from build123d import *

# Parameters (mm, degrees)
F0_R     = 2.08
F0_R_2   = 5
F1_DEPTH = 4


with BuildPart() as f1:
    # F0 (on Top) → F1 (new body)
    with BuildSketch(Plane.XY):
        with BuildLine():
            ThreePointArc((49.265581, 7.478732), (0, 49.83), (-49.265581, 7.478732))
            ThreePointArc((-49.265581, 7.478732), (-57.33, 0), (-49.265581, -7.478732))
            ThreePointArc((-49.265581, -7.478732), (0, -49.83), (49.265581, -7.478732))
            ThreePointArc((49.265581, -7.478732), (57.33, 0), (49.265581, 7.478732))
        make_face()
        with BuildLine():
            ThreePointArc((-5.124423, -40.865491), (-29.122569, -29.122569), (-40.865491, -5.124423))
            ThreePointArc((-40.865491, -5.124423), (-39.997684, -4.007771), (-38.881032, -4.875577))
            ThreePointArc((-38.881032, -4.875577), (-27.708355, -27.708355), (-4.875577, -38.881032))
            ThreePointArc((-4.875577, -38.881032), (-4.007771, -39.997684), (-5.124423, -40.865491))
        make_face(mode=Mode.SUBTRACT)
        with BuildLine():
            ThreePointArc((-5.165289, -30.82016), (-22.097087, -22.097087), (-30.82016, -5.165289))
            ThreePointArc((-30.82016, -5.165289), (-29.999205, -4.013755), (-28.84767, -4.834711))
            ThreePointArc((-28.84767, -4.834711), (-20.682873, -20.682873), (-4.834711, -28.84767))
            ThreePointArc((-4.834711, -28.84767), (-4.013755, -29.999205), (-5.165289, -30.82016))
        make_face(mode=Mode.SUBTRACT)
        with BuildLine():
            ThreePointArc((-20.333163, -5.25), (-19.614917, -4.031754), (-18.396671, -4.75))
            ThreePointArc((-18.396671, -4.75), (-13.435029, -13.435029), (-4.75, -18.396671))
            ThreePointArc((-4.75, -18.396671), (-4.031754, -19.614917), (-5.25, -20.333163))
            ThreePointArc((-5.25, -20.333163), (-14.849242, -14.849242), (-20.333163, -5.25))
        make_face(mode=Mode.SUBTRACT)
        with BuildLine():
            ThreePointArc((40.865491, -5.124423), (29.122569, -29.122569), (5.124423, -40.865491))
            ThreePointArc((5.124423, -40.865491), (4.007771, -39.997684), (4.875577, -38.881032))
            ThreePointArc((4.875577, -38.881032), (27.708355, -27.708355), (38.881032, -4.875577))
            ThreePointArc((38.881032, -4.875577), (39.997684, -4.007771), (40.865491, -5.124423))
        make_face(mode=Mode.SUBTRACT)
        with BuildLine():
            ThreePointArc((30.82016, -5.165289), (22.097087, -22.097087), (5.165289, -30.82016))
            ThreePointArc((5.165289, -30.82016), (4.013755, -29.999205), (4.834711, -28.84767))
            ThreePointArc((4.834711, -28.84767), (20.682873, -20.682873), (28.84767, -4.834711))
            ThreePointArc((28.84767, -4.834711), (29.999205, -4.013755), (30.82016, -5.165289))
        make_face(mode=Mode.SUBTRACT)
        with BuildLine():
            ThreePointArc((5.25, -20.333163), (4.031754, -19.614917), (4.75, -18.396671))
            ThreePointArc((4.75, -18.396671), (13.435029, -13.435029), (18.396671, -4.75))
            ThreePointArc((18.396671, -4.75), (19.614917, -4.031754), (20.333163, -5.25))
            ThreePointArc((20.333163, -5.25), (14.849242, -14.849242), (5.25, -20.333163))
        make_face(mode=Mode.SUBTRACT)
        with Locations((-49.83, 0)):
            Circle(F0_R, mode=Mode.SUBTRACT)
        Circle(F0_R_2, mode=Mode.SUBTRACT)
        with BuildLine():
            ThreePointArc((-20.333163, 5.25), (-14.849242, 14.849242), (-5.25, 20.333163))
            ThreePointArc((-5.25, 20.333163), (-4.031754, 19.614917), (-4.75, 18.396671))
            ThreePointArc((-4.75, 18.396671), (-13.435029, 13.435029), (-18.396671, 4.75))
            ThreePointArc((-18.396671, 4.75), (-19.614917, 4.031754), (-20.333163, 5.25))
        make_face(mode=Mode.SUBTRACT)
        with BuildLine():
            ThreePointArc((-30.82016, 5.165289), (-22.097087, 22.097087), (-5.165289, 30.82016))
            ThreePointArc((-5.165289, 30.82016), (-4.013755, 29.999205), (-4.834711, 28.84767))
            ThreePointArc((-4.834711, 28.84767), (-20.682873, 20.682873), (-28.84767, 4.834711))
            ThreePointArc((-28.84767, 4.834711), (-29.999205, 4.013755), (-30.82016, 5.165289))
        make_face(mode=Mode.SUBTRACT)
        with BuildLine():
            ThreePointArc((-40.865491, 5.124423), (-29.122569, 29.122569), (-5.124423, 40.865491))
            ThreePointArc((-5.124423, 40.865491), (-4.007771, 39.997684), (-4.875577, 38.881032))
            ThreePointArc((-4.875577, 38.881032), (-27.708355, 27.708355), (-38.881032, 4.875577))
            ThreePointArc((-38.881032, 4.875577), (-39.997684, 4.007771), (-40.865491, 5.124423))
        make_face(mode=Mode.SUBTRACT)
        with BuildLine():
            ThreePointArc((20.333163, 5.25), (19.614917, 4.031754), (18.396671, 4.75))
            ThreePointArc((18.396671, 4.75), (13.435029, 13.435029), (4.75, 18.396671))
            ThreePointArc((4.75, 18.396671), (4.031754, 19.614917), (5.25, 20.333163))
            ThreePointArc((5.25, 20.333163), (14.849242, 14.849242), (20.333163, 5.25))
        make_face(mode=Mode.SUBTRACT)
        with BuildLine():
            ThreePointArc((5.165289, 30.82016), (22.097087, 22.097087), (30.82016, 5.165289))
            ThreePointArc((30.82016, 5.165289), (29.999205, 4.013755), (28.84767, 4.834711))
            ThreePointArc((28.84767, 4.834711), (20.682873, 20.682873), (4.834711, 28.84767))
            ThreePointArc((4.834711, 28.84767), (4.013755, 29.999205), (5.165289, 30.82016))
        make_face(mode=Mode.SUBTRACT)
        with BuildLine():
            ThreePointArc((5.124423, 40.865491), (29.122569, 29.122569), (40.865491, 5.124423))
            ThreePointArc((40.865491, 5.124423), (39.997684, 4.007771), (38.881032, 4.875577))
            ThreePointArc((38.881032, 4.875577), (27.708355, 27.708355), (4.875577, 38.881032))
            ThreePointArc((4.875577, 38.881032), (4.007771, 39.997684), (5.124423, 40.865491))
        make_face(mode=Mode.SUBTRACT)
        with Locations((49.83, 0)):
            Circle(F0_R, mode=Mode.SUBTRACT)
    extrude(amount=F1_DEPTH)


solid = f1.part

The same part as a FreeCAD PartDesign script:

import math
import FreeCAD as App
import Part
import Sketcher

V = App.Vector

doc = App.newDocument("Part")
body = doc.addObject("PartDesign::Body", "Body")

sketch1 = body.newObject("Sketcher::SketchObject", "Sketch")
sketch1.AttachmentSupport = (doc.getObject("XY_Plane"), [""])
sketch1.MapMode = "FlatFace"
sketch1.addGeometry(Part.ArcOfCircle(Part.Circle(V(0, 0, 0), V(0, 0, 1), 49.83), math.radians(8.631848), math.radians(171.368152)), False)
sketch1.addGeometry(Part.ArcOfCircle(Part.Circle(V(-49.83, 0, 0), V(0, 0, 1), 7.5), math.radians(85.684077), math.radians(274.315923)), False)
sketch1.addGeometry(Part.ArcOfCircle(Part.Circle(V(0, 0, 0), V(0, 0, 1), 49.83), math.radians(-171.368152), math.radians(-8.631848)), False)
sketch1.addGeometry(Part.ArcOfCircle(Part.Circle(V(49.83, 0, 0), V(0, 0, 1), 7.5), math.radians(-94.315923), math.radians(94.315923)), False)
sketch1.addGeometry(Part.ArcOfCircle(Part.Circle(V(-5.000001, -39.873261, 0), V(0, 0, 1), 1), math.radians(-97.147402), math.radians(82.852534)), False)
sketch1.addGeometry(Part.ArcOfCircle(Part.Circle(V(0.000001, 0.000001, 0), V(0, 0, 1), 41.185533), math.radians(-172.85257), math.radians(-97.14743)), False)
sketch1.addGeometry(Part.ArcOfCircle(Part.Circle(V(-39.873261, -5.000001, 0), V(0, 0, 1), 1), math.radians(7.147466), math.radians(187.147402)), False)
sketch1.addGeometry(Part.ArcOfCircle(Part.Circle(V(0.000001, 0.000001, 0), V(0, 0, 1), 39.185533), math.radians(-172.852569), math.radians(-97.147431)), False)
sketch1.addGeometry(Part.Circle(V(-49.83, 0, 0), V(0, 0, 1), 2.08), False)
sketch1.addGeometry(Part.ArcOfCircle(Part.Circle(V(-5, -29.833915, 0), V(0, 0, 1), 1), math.radians(-99.514035), math.radians(80.485984)), False)
sketch1.addGeometry(Part.ArcOfCircle(Part.Circle(V(-0.000002, -0.000002, 0), V(0, 0, 1), 31.249997), math.radians(-170.485965), math.radians(-99.514035)), False)
sketch1.addGeometry(Part.ArcOfCircle(Part.Circle(V(-29.833915, -5, 0), V(0, 0, 1), 1), math.radians(9.514016), math.radians(189.514035)), False)
sketch1.addGeometry(Part.ArcOfCircle(Part.Circle(V(0.000002, 0.000002, 0), V(0, 0, 1), 29.250002), math.radians(-170.485959), math.radians(-99.514041)), False)
sketch1.addGeometry(Part.ArcOfCircle(Part.Circle(V(0.000005, 0.000005, 0), V(0, 0, 1), 21.000007), math.radians(-165.522478), math.radians(-104.477522)), False)
sketch1.addGeometry(Part.ArcOfCircle(Part.Circle(V(-19.364917, -5, 0), V(0, 0, 1), 1), math.radians(14.47751), math.radians(194.47751)), False)
sketch1.addGeometry(Part.ArcOfCircle(Part.Circle(V(-0.000001, -0.000001, 0), V(0, 0, 1), 18.999999), math.radians(-165.522489), math.radians(-104.477511)), False)
sketch1.addGeometry(Part.ArcOfCircle(Part.Circle(V(-5, -19.364917, 0), V(0, 0, 1), 1), math.radians(-104.47751), math.radians(75.52249)), False)
sketch1.addGeometry(Part.Circle(V(0, 0, 0), V(0, 0, 1), 5), False)
sketch1.addGeometry(Part.ArcOfCircle(Part.Circle(V(39.873261, -5.000001, 0), V(0, 0, 1), 1), math.radians(-7.147402), math.radians(172.852534)), False)
sketch1.addGeometry(Part.ArcOfCircle(Part.Circle(V(-0.000001, 0.000001, 0), V(0, 0, 1), 41.185533), math.radians(-82.85257), math.radians(-7.14743)), False)
sketch1.addGeometry(Part.ArcOfCircle(Part.Circle(V(5.000001, -39.873261, 0), V(0, 0, 1), 1), math.radians(97.147466), math.radians(277.147402)), False)
sketch1.addGeometry(Part.ArcOfCircle(Part.Circle(V(-0.000001, 0.000001, 0), V(0, 0, 1), 39.185533), math.radians(-82.852569), math.radians(-7.147431)), False)
sketch1.addGeometry(Part.ArcOfCircle(Part.Circle(V(-0.000005, 0.000005, 0), V(0, 0, 1), 21.000007), math.radians(-75.522478), math.radians(-14.477522)), False)
sketch1.addGeometry(Part.ArcOfCircle(Part.Circle(V(5, -19.364917, 0), V(0, 0, 1), 1), math.radians(104.47751), math.radians(284.47751)), False)
sketch1.addGeometry(Part.ArcOfCircle(Part.Circle(V(0.000001, -0.000001, 0), V(0, 0, 1), 18.999999), math.radians(-75.522489), math.radians(-14.477511)), False)
sketch1.addGeometry(Part.ArcOfCircle(Part.Circle(V(19.364917, -5, 0), V(0, 0, 1), 1), math.radians(-14.47751), math.radians(165.52249)), False)
sketch1.addGeometry(Part.ArcOfCircle(Part.Circle(V(29.833915, -5, 0), V(0, 0, 1), 1), math.radians(-9.514035), math.radians(170.485984)), False)
sketch1.addGeometry(Part.ArcOfCircle(Part.Circle(V(0.000002, -0.000002, 0), V(0, 0, 1), 31.249997), math.radians(-80.485965), math.radians(-9.514035)), False)
sketch1.addGeometry(Part.ArcOfCircle(Part.Circle(V(5, -29.833915, 0), V(0, 0, 1), 1), math.radians(99.514016), math.radians(279.514035)), False)
sketch1.addGeometry(Part.ArcOfCircle(Part.Circle(V(-0.000002, 0.000002, 0), V(0, 0, 1), 29.250002), math.radians(-80.485959), math.radians(-9.514041)), False)
sketch1.addGeometry(Part.Circle(V(49.83, 0, 0), V(0, 0, 1), 2.08), False)
sketch1.addGeometry(Part.ArcOfCircle(Part.Circle(V(-29.833915, 5, 0), V(0, 0, 1), 1), math.radians(170.485965), math.radians(350.485984)), False)
sketch1.addGeometry(Part.ArcOfCircle(Part.Circle(V(-0.000002, 0.000002, 0), V(0, 0, 1), 31.249997), math.radians(99.514035), math.radians(170.485965)), False)
sketch1.addGeometry(Part.ArcOfCircle(Part.Circle(V(-5, 29.833915, 0), V(0, 0, 1), 1), math.radians(-80.485984), math.radians(99.514035)), False)
sketch1.addGeometry(Part.ArcOfCircle(Part.Circle(V(0.000002, -0.000002, 0), V(0, 0, 1), 29.250002), math.radians(99.514041), math.radians(170.485959)), False)
sketch1.addGeometry(Part.ArcOfCircle(Part.Circle(V(-19.364917, 5, 0), V(0, 0, 1), 1), math.radians(165.52249), math.radians(345.52249)), False)
sketch1.addGeometry(Part.ArcOfCircle(Part.Circle(V(0.000005, -0.000005, 0), V(0, 0, 1), 21.000007), math.radians(104.477522), math.radians(165.522478)), False)
sketch1.addGeometry(Part.ArcOfCircle(Part.Circle(V(-5, 19.364917, 0), V(0, 0, 1), 1), math.radians(-75.52249), math.radians(104.47751)), False)
sketch1.addGeometry(Part.ArcOfCircle(Part.Circle(V(-0.000001, 0.000001, 0), V(0, 0, 1), 18.999999), math.radians(104.477511), math.radians(165.522489)), False)
sketch1.addGeometry(Part.ArcOfCircle(Part.Circle(V(-39.873261, 5.000001, 0), V(0, 0, 1), 1), math.radians(172.852598), math.radians(352.852534)), False)
sketch1.addGeometry(Part.ArcOfCircle(Part.Circle(V(0.000001, -0.000001, 0), V(0, 0, 1), 41.185533), math.radians(97.14743), math.radians(172.85257)), False)
sketch1.addGeometry(Part.ArcOfCircle(Part.Circle(V(-5.000001, 39.873261, 0), V(0, 0, 1), 1), math.radians(-82.852534), math.radians(97.147402)), False)
sketch1.addGeometry(Part.ArcOfCircle(Part.Circle(V(0.000001, -0.000001, 0), V(0, 0, 1), 39.185533), math.radians(97.147431), math.radians(172.852569)), False)
sketch1.addGeometry(Part.ArcOfCircle(Part.Circle(V(-0.000005, -0.000005, 0), V(0, 0, 1), 21.000007), math.radians(14.477522), math.radians(75.522478)), False)
sketch1.addGeometry(Part.ArcOfCircle(Part.Circle(V(19.364917, 5, 0), V(0, 0, 1), 1), math.radians(-165.52249), math.radians(14.47751)), False)
sketch1.addGeometry(Part.ArcOfCircle(Part.Circle(V(0.000001, 0.000001, 0), V(0, 0, 1), 18.999999), math.radians(14.477511), math.radians(75.522489)), False)
sketch1.addGeometry(Part.ArcOfCircle(Part.Circle(V(5, 19.364917, 0), V(0, 0, 1), 1), math.radians(75.52249), math.radians(255.52249)), False)
sketch1.addGeometry(Part.ArcOfCircle(Part.Circle(V(5, 29.833915, 0), V(0, 0, 1), 1), math.radians(80.485965), math.radians(260.485984)), False)
sketch1.addGeometry(Part.ArcOfCircle(Part.Circle(V(0.000002, 0.000002, 0), V(0, 0, 1), 31.249997), math.radians(9.514035), math.radians(80.485965)), False)
sketch1.addGeometry(Part.ArcOfCircle(Part.Circle(V(29.833915, 5, 0), V(0, 0, 1), 1), math.radians(-170.485984), math.radians(9.514035)), False)
sketch1.addGeometry(Part.ArcOfCircle(Part.Circle(V(-0.000002, -0.000002, 0), V(0, 0, 1), 29.250002), math.radians(9.514041), math.radians(80.485959)), False)
sketch1.addGeometry(Part.ArcOfCircle(Part.Circle(V(5.000001, 39.873261, 0), V(0, 0, 1), 1), math.radians(82.852598), math.radians(262.852534)), False)
sketch1.addGeometry(Part.ArcOfCircle(Part.Circle(V(-0.000001, -0.000001, 0), V(0, 0, 1), 41.185533), math.radians(7.14743), math.radians(82.85257)), False)
sketch1.addGeometry(Part.ArcOfCircle(Part.Circle(V(39.873261, 5.000001, 0), V(0, 0, 1), 1), math.radians(-172.852534), math.radians(7.147402)), False)
sketch1.addGeometry(Part.ArcOfCircle(Part.Circle(V(-0.000001, -0.000001, 0), V(0, 0, 1), 39.185533), math.radians(7.147431), math.radians(82.852569)), False)
sketch1.addConstraint(Sketcher.Constraint("Coincident", 0, 2, 1, 1))
sketch1.addConstraint(Sketcher.Constraint("Coincident", 1, 2, 2, 1))
sketch1.addConstraint(Sketcher.Constraint("Coincident", 2, 2, 3, 1))
sketch1.addConstraint(Sketcher.Constraint("Coincident", 3, 2, 0, 1))
sketch1.addConstraint(Sketcher.Constraint("Tangent", 4, 1, 5, 2))
sketch1.addConstraint(Sketcher.Constraint("Tangent", 5, 1, 6, 2))
sketch1.addConstraint(Sketcher.Constraint("Tangent", 6, 1, 7, 1))
sketch1.addConstraint(Sketcher.Constraint("Tangent", 7, 2, 4, 2))
sketch1.addConstraint(Sketcher.Constraint("Tangent", 9, 1, 10, 2))
sketch1.addConstraint(Sketcher.Constraint("Tangent", 10, 1, 11, 2))
sketch1.addConstraint(Sketcher.Constraint("Tangent", 11, 1, 12, 1))
sketch1.addConstraint(Sketcher.Constraint("Tangent", 12, 2, 9, 2))
sketch1.addConstraint(Sketcher.Constraint("Tangent", 13, 1, 14, 2))
sketch1.addConstraint(Sketcher.Constraint("Tangent", 14, 1, 15, 1))
sketch1.addConstraint(Sketcher.Constraint("Tangent", 15, 2, 16, 2))
sketch1.addConstraint(Sketcher.Constraint("Tangent", 16, 1, 13, 2))
sketch1.addConstraint(Sketcher.Constraint("Tangent", 18, 1, 19, 2))
sketch1.addConstraint(Sketcher.Constraint("Tangent", 19, 1, 20, 2))
sketch1.addConstraint(Sketcher.Constraint("Tangent", 20, 1, 21, 1))
sketch1.addConstraint(Sketcher.Constraint("Tangent", 21, 2, 18, 2))
sketch1.addConstraint(Sketcher.Constraint("Tangent", 22, 1, 23, 2))
sketch1.addConstraint(Sketcher.Constraint("Tangent", 23, 1, 24, 1))
sketch1.addConstraint(Sketcher.Constraint("Tangent", 24, 2, 25, 2))
sketch1.addConstraint(Sketcher.Constraint("Tangent", 25, 1, 22, 2))
sketch1.addConstraint(Sketcher.Constraint("Tangent", 26, 1, 27, 2))
sketch1.addConstraint(Sketcher.Constraint("Tangent", 27, 1, 28, 2))
sketch1.addConstraint(Sketcher.Constraint("Tangent", 28, 1, 29, 1))
sketch1.addConstraint(Sketcher.Constraint("Tangent", 29, 2, 26, 2))
sketch1.addConstraint(Sketcher.Constraint("Tangent", 31, 1, 32, 2))
sketch1.addConstraint(Sketcher.Constraint("Tangent", 32, 1, 33, 2))
sketch1.addConstraint(Sketcher.Constraint("Tangent", 33, 1, 34, 1))
sketch1.addConstraint(Sketcher.Constraint("Tangent", 34, 2, 31, 2))
sketch1.addConstraint(Sketcher.Constraint("Tangent", 35, 1, 36, 2))
sketch1.addConstraint(Sketcher.Constraint("Tangent", 36, 1, 37, 2))
sketch1.addConstraint(Sketcher.Constraint("Tangent", 37, 1, 38, 1))
sketch1.addConstraint(Sketcher.Constraint("Tangent", 38, 2, 35, 2))
sketch1.addConstraint(Sketcher.Constraint("Tangent", 39, 1, 40, 2))
sketch1.addConstraint(Sketcher.Constraint("Tangent", 40, 1, 41, 2))
sketch1.addConstraint(Sketcher.Constraint("Tangent", 41, 1, 42, 1))
sketch1.addConstraint(Sketcher.Constraint("Tangent", 42, 2, 39, 2))
sketch1.addConstraint(Sketcher.Constraint("Tangent", 43, 1, 44, 2))
sketch1.addConstraint(Sketcher.Constraint("Tangent", 44, 1, 45, 1))
sketch1.addConstraint(Sketcher.Constraint("Tangent", 45, 2, 46, 2))
sketch1.addConstraint(Sketcher.Constraint("Tangent", 46, 1, 43, 2))
sketch1.addConstraint(Sketcher.Constraint("Tangent", 47, 1, 48, 2))
sketch1.addConstraint(Sketcher.Constraint("Tangent", 48, 1, 49, 2))
sketch1.addConstraint(Sketcher.Constraint("Tangent", 49, 1, 50, 1))
sketch1.addConstraint(Sketcher.Constraint("Tangent", 50, 2, 47, 2))
sketch1.addConstraint(Sketcher.Constraint("Tangent", 51, 1, 52, 2))
sketch1.addConstraint(Sketcher.Constraint("Tangent", 52, 1, 53, 2))
sketch1.addConstraint(Sketcher.Constraint("Tangent", 53, 1, 54, 1))
sketch1.addConstraint(Sketcher.Constraint("Tangent", 54, 2, 51, 2))
sketch1.addConstraint(Sketcher.Constraint("Coincident", 0, 3, -1, 1))
sketch1.addConstraint(Sketcher.Constraint("Coincident", 2, 3, -1, 1))
sketch1.addConstraint(Sketcher.Constraint("Coincident", 5, 3, -1, 1))
sketch1.addConstraint(Sketcher.Constraint("Coincident", 7, 3, -1, 1))
sketch1.addConstraint(Sketcher.Constraint("Coincident", 10, 3, -1, 1))
sketch1.addConstraint(Sketcher.Constraint("Coincident", 12, 3, -1, 1))
sketch1.addConstraint(Sketcher.Constraint("Coincident", 13, 3, -1, 1))
sketch1.addConstraint(Sketcher.Constraint("Coincident", 15, 3, -1, 1))
sketch1.addConstraint(Sketcher.Constraint("Coincident", 17, 3, -1, 1))
sketch1.addConstraint(Sketcher.Constraint("Coincident", 19, 3, -1, 1))
sketch1.addConstraint(Sketcher.Constraint("Coincident", 21, 3, -1, 1))
sketch1.addConstraint(Sketcher.Constraint("Coincident", 22, 3, -1, 1))
sketch1.addConstraint(Sketcher.Constraint("Coincident", 24, 3, -1, 1))
sketch1.addConstraint(Sketcher.Constraint("Coincident", 27, 3, -1, 1))
sketch1.addConstraint(Sketcher.Constraint("Coincident", 29, 3, -1, 1))
sketch1.addConstraint(Sketcher.Constraint("Coincident", 32, 3, -1, 1))
sketch1.addConstraint(Sketcher.Constraint("Coincident", 34, 3, -1, 1))
sketch1.addConstraint(Sketcher.Constraint("Coincident", 36, 3, -1, 1))
sketch1.addConstraint(Sketcher.Constraint("Coincident", 38, 3, -1, 1))
sketch1.addConstraint(Sketcher.Constraint("Coincident", 40, 3, -1, 1))
sketch1.addConstraint(Sketcher.Constraint("Coincident", 42, 3, -1, 1))
sketch1.addConstraint(Sketcher.Constraint("Coincident", 43, 3, -1, 1))
sketch1.addConstraint(Sketcher.Constraint("Coincident", 45, 3, -1, 1))
sketch1.addConstraint(Sketcher.Constraint("Coincident", 48, 3, -1, 1))
sketch1.addConstraint(Sketcher.Constraint("Coincident", 50, 3, -1, 1))
sketch1.addConstraint(Sketcher.Constraint("Coincident", 52, 3, -1, 1))
sketch1.addConstraint(Sketcher.Constraint("Coincident", 54, 3, -1, 1))
sketch1.addConstraint(Sketcher.Constraint("Coincident", 8, 3, 1, 3))
sketch1.addConstraint(Sketcher.Constraint("Coincident", 30, 3, 3, 3))
sketch1.addConstraint(Sketcher.Constraint("Equal", 0, 2))
sketch1.addConstraint(Sketcher.Constraint("Equal", 1, 3))
sketch1.addConstraint(Sketcher.Constraint("Equal", 6, 9))
sketch1.addConstraint(Sketcher.Constraint("Equal", 11, 14))
sketch1.addConstraint(Sketcher.Constraint("Equal", 16, 18))
sketch1.addConstraint(Sketcher.Constraint("Equal", 5, 19))
sketch1.addConstraint(Sketcher.Constraint("Equal", 13, 22))
sketch1.addConstraint(Sketcher.Constraint("Equal", 20, 23))
sketch1.addConstraint(Sketcher.Constraint("Equal", 25, 26))
sketch1.addConstraint(Sketcher.Constraint("Equal", 10, 27))
sketch1.addConstraint(Sketcher.Constraint("Equal", 8, 30))
sketch1.addConstraint(Sketcher.Constraint("Equal", 28, 31))
sketch1.addConstraint(Sketcher.Constraint("Equal", 27, 32))
sketch1.addConstraint(Sketcher.Constraint("Equal", 33, 35))
sketch1.addConstraint(Sketcher.Constraint("Equal", 22, 36))
sketch1.addConstraint(Sketcher.Constraint("Equal", 37, 39))
sketch1.addConstraint(Sketcher.Constraint("Equal", 19, 40))
sketch1.addConstraint(Sketcher.Constraint("Equal", 36, 43))
sketch1.addConstraint(Sketcher.Constraint("Equal", 41, 44))
sketch1.addConstraint(Sketcher.Constraint("Equal", 46, 47))
sketch1.addConstraint(Sketcher.Constraint("Equal", 32, 48))
sketch1.addConstraint(Sketcher.Constraint("Equal", 49, 51))
sketch1.addConstraint(Sketcher.Constraint("Equal", 40, 52))
sketch1.addConstraint(Sketcher.Constraint("Symmetric", 1, 3, 3, 3, -1, 1))
sketch1.addConstraint(Sketcher.Constraint("PointOnObject", 1, 3, -1))
sketch1.addConstraint(Sketcher.Constraint("Horizontal", 6, 3, 11, 3))
sketch1.addConstraint(Sketcher.Constraint("Horizontal", 11, 3, 14, 3))
sketch1.addConstraint(Sketcher.Constraint("Horizontal", 14, 3, 18, 3))
sketch1.addConstraint(Sketcher.Constraint("Horizontal", 4, 3, 20, 3))
sketch1.addConstraint(Sketcher.Constraint("Horizontal", 16, 3, 23, 3))
sketch1.addConstraint(Sketcher.Constraint("Horizontal", 18, 3, 25, 3))
sketch1.addConstraint(Sketcher.Constraint("Horizontal", 25, 3, 26, 3))
sketch1.addConstraint(Sketcher.Constraint("Horizontal", 9, 3, 28, 3))
sketch1.addConstraint(Sketcher.Constraint("Horizontal", 31, 3, 35, 3))
sketch1.addConstraint(Sketcher.Constraint("Horizontal", 35, 3, 39, 3))
sketch1.addConstraint(Sketcher.Constraint("Horizontal", 39, 3, 44, 3))
sketch1.addConstraint(Sketcher.Constraint("Horizontal", 37, 3, 46, 3))
sketch1.addConstraint(Sketcher.Constraint("Horizontal", 33, 3, 47, 3))
sketch1.addConstraint(Sketcher.Constraint("Horizontal", 44, 3, 49, 3))
sketch1.addConstraint(Sketcher.Constraint("Horizontal", 41, 3, 51, 3))
sketch1.addConstraint(Sketcher.Constraint("Horizontal", 49, 3, 53, 3))
sketch1.addConstraint(Sketcher.Constraint("Vertical", 4, 3, 9, 3))
sketch1.addConstraint(Sketcher.Constraint("Vertical", 9, 3, 16, 3))
sketch1.addConstraint(Sketcher.Constraint("Vertical", 11, 3, 31, 3))
sketch1.addConstraint(Sketcher.Constraint("Vertical", 16, 3, 33, 3))
sketch1.addConstraint(Sketcher.Constraint("Vertical", 33, 3, 37, 3))
sketch1.addConstraint(Sketcher.Constraint("Vertical", 37, 3, 41, 3))
sketch1.addConstraint(Sketcher.Constraint("Diameter", 17, 10.0))
sketch1.addConstraint(Sketcher.Constraint("Radius", 4, 1.0))
sketch1.addConstraint(Sketcher.Constraint("Radius", 15, 18.999999))
sketch1.addConstraint(Sketcher.Constraint("Radius", 1, 7.5))
sketch1.addConstraint(Sketcher.Constraint("Diameter", 8, 4.16))
sketch1.addConstraint(Sketcher.Constraint("Radius", 0, 49.83))
sketch1.addConstraint(Sketcher.Constraint("Radius", 12, 29.250002))
sketch1.addConstraint(Sketcher.Constraint("DistanceX", 4, 3, -1, 1, 5.000001))
sketch1.addConstraint(Sketcher.Constraint("DistanceY", 6, 3, -1, 1, 5.000001))
sketch1.addConstraint(Sketcher.Constraint("DistanceX", 1, 3, -1, 1, 49.83))
sketch1.addConstraint(Sketcher.Constraint("Radius", 5, 41.185533))
pad1 = body.newObject("PartDesign::Pad", "Pad")
pad1.Profile = sketch1
pad1.Length = 4

doc.recompute()
